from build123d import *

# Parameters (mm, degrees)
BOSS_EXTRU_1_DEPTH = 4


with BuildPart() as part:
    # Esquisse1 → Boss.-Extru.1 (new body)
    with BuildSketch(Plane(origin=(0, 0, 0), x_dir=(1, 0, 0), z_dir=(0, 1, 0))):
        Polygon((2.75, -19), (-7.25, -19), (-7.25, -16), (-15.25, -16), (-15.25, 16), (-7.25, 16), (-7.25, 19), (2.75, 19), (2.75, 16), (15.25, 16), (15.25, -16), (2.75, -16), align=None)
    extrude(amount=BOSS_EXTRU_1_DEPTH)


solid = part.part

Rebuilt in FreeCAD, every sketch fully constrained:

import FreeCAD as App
import Part
import Sketcher
from FreeCAD import Vector
Q = App.Units.Quantity


def add_polygon(sketch, points):
    """Adds a closed chain of lines whose ends are joined by coincident constraints."""
    first, n = sketch.GeometryCount, len(points)
    for a, b in zip(points, points[1:] + points[:1]):
        sketch.addGeometry(Part.LineSegment(App.Vector(*a, 0), App.Vector(*b, 0)), False)
    for i in range(n):
        sketch.addConstraint(Sketcher.Constraint("Coincident", first + i, 2, first + (i + 1) % n, 1))

doc = App.newDocument("Part")
body = doc.addObject("PartDesign::Body", "Body")

sketch1 = body.newObject("Sketcher::SketchObject", "Sketch")
sketch1.AttachmentSupport = (doc.getObject("XZ_Plane"), [""])
sketch1.MapMode = "FlatFace"
add_polygon(sketch1, [(-7.2, 19), (2.8, 19), (2.8, 16), (15.2, 16), (15.2, -16), (2.8, -16), (2.8, -19), (-7.2, -19), (-7.2, -16), (-15.2, -16), (-15.2, 16), (-7.2, 16)])
sketch1.addConstraint([
    Sketcher.Constraint("Horizontal", 0),
    Sketcher.Constraint("Vertical", 1),
    Sketcher.Constraint("Horizontal", 2),
    Sketcher.Constraint("Vertical", 3),
    Sketcher.Constraint("Horizontal", 4),
    Sketcher.Constraint("Vertical", 5),
    Sketcher.Constraint("Horizontal", 6),
    Sketcher.Constraint("Vertical", 7),
    Sketcher.Constraint("Horizontal", 8),
    Sketcher.Constraint("Vertical", 9),
    Sketcher.Constraint("Horizontal", 10),
    Sketcher.Constraint("Vertical", 11),
    Sketcher.Constraint("Symmetric", 2, 2, 8, 2, -1, 1),
    Sketcher.Constraint("Symmetric", 1, 2, 4, 2, -1),
    Sketcher.Constraint("Symmetric", 7, 2, 10, 2, -1),
    Sketcher.Constraint("Equal", 1, 5),
    Sketcher.Constraint("DistanceX", 0, 1, 0, 2, Q("10 mm")),
    Sketcher.Constraint("DistanceX", 8, 2, 8, 1, Q("8 mm")),
    Sketcher.Constraint("DistanceY", 1, 2, 1, 1, Q("3 mm")),
    Sketcher.Constraint("DistanceY", 3, 2, 3, 1, Q("32 mm")),
    Sketcher.Constraint("DistanceX", 2, 1, 2, 2, Q("12.5 mm")),
])
pad1 = body.newObject("PartDesign::Pad", "Pad")
pad1.Profile = sketch1
pad1.Length = 4
pad1.Reversed = True

doc.recompute()
